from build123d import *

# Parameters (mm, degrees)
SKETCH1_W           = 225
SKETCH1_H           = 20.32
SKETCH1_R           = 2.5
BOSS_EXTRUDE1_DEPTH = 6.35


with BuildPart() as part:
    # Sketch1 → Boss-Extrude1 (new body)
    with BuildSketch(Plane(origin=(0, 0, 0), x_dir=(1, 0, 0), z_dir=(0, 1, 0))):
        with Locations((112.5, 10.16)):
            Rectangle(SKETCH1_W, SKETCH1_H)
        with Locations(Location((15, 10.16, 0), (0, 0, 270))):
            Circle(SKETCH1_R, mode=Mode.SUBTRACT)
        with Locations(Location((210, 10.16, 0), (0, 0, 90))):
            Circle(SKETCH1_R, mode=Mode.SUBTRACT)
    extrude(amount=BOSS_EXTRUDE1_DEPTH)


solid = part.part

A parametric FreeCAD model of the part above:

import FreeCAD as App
import Part
import Sketcher
from FreeCAD import Vector
Q = App.Units.Quantity


def add_polygon(sketch, points):
    """Adds a closed chain of lines whose ends are joined by coincident constraints."""
    first, n = sketch.GeometryCount, len(points)
    for a, b in zip(points, points[1:] + points[:1]):
        sketch.addGeometry(Part.LineSegment(App.Vector(*a, 0), App.Vector(*b, 0)), False)
    for i in range(n):
        sketch.addConstraint(Sketcher.Constraint("Coincident", first + i, 2, first + (i + 1) % n, 1))

doc = App.newDocument("Part")
body = doc.addObject("PartDesign::Body", "Body")

sketch1 = body.newObject("Sketcher::SketchObject", "Sketch")
sketch1.AttachmentSupport = (doc.getObject("XZ_Plane"), [""])
sketch1.MapMode = "FlatFace"
add_polygon(sketch1, [(0, -20.3), (0, 0), (225, 0), (225, -20.3)])
sketch1.addGeometry(Part.Circle(Vector(15, -10.2, 0), Vector(0, 0, 1), 2.5), False)
sketch1.addGeometry(Part.Circle(Vector(210, -10.2, 0), Vector(0, 0, 1), 2.5), False)
sketch1.addConstraint([
    Sketcher.Constraint("Vertical", 0),
    Sketcher.Constraint("Horizontal", 1),
    Sketcher.Constraint("Vertical", 2),
    Sketcher.Constraint("Horizontal", 3),
    Sketcher.Constraint("Coincident", 0, 2, -1, 1),
    Sketcher.Constraint("Equal", 4, 5),
    Sketcher.Constraint("Horizontal", 4, 3, 5, 3),
    Sketcher.Constraint("Diameter", 4, Q("5 mm")),
    Sketcher.Constraint("DistanceX", 1, 1, 1, 2, Q("225 mm")),
    Sketcher.Constraint("DistanceX", -1, 1, 4, 3, Q("15 mm")),
    Sketcher.Constraint("DistanceX", -1, 1, 5, 3, Q("210 mm")),
    Sketcher.Constraint("DistanceY", 0, 1, 0, 2, Q("20.32 mm")),
    Sketcher.Constraint("DistanceY", 4, 3, -1, 1, Q("10.16 mm")),
])
pad1 = body.newObject("PartDesign::Pad", "Pad")
pad1.Profile = sketch1
pad1.Length = 6.35
pad1.Reversed = True

doc.recompute()
